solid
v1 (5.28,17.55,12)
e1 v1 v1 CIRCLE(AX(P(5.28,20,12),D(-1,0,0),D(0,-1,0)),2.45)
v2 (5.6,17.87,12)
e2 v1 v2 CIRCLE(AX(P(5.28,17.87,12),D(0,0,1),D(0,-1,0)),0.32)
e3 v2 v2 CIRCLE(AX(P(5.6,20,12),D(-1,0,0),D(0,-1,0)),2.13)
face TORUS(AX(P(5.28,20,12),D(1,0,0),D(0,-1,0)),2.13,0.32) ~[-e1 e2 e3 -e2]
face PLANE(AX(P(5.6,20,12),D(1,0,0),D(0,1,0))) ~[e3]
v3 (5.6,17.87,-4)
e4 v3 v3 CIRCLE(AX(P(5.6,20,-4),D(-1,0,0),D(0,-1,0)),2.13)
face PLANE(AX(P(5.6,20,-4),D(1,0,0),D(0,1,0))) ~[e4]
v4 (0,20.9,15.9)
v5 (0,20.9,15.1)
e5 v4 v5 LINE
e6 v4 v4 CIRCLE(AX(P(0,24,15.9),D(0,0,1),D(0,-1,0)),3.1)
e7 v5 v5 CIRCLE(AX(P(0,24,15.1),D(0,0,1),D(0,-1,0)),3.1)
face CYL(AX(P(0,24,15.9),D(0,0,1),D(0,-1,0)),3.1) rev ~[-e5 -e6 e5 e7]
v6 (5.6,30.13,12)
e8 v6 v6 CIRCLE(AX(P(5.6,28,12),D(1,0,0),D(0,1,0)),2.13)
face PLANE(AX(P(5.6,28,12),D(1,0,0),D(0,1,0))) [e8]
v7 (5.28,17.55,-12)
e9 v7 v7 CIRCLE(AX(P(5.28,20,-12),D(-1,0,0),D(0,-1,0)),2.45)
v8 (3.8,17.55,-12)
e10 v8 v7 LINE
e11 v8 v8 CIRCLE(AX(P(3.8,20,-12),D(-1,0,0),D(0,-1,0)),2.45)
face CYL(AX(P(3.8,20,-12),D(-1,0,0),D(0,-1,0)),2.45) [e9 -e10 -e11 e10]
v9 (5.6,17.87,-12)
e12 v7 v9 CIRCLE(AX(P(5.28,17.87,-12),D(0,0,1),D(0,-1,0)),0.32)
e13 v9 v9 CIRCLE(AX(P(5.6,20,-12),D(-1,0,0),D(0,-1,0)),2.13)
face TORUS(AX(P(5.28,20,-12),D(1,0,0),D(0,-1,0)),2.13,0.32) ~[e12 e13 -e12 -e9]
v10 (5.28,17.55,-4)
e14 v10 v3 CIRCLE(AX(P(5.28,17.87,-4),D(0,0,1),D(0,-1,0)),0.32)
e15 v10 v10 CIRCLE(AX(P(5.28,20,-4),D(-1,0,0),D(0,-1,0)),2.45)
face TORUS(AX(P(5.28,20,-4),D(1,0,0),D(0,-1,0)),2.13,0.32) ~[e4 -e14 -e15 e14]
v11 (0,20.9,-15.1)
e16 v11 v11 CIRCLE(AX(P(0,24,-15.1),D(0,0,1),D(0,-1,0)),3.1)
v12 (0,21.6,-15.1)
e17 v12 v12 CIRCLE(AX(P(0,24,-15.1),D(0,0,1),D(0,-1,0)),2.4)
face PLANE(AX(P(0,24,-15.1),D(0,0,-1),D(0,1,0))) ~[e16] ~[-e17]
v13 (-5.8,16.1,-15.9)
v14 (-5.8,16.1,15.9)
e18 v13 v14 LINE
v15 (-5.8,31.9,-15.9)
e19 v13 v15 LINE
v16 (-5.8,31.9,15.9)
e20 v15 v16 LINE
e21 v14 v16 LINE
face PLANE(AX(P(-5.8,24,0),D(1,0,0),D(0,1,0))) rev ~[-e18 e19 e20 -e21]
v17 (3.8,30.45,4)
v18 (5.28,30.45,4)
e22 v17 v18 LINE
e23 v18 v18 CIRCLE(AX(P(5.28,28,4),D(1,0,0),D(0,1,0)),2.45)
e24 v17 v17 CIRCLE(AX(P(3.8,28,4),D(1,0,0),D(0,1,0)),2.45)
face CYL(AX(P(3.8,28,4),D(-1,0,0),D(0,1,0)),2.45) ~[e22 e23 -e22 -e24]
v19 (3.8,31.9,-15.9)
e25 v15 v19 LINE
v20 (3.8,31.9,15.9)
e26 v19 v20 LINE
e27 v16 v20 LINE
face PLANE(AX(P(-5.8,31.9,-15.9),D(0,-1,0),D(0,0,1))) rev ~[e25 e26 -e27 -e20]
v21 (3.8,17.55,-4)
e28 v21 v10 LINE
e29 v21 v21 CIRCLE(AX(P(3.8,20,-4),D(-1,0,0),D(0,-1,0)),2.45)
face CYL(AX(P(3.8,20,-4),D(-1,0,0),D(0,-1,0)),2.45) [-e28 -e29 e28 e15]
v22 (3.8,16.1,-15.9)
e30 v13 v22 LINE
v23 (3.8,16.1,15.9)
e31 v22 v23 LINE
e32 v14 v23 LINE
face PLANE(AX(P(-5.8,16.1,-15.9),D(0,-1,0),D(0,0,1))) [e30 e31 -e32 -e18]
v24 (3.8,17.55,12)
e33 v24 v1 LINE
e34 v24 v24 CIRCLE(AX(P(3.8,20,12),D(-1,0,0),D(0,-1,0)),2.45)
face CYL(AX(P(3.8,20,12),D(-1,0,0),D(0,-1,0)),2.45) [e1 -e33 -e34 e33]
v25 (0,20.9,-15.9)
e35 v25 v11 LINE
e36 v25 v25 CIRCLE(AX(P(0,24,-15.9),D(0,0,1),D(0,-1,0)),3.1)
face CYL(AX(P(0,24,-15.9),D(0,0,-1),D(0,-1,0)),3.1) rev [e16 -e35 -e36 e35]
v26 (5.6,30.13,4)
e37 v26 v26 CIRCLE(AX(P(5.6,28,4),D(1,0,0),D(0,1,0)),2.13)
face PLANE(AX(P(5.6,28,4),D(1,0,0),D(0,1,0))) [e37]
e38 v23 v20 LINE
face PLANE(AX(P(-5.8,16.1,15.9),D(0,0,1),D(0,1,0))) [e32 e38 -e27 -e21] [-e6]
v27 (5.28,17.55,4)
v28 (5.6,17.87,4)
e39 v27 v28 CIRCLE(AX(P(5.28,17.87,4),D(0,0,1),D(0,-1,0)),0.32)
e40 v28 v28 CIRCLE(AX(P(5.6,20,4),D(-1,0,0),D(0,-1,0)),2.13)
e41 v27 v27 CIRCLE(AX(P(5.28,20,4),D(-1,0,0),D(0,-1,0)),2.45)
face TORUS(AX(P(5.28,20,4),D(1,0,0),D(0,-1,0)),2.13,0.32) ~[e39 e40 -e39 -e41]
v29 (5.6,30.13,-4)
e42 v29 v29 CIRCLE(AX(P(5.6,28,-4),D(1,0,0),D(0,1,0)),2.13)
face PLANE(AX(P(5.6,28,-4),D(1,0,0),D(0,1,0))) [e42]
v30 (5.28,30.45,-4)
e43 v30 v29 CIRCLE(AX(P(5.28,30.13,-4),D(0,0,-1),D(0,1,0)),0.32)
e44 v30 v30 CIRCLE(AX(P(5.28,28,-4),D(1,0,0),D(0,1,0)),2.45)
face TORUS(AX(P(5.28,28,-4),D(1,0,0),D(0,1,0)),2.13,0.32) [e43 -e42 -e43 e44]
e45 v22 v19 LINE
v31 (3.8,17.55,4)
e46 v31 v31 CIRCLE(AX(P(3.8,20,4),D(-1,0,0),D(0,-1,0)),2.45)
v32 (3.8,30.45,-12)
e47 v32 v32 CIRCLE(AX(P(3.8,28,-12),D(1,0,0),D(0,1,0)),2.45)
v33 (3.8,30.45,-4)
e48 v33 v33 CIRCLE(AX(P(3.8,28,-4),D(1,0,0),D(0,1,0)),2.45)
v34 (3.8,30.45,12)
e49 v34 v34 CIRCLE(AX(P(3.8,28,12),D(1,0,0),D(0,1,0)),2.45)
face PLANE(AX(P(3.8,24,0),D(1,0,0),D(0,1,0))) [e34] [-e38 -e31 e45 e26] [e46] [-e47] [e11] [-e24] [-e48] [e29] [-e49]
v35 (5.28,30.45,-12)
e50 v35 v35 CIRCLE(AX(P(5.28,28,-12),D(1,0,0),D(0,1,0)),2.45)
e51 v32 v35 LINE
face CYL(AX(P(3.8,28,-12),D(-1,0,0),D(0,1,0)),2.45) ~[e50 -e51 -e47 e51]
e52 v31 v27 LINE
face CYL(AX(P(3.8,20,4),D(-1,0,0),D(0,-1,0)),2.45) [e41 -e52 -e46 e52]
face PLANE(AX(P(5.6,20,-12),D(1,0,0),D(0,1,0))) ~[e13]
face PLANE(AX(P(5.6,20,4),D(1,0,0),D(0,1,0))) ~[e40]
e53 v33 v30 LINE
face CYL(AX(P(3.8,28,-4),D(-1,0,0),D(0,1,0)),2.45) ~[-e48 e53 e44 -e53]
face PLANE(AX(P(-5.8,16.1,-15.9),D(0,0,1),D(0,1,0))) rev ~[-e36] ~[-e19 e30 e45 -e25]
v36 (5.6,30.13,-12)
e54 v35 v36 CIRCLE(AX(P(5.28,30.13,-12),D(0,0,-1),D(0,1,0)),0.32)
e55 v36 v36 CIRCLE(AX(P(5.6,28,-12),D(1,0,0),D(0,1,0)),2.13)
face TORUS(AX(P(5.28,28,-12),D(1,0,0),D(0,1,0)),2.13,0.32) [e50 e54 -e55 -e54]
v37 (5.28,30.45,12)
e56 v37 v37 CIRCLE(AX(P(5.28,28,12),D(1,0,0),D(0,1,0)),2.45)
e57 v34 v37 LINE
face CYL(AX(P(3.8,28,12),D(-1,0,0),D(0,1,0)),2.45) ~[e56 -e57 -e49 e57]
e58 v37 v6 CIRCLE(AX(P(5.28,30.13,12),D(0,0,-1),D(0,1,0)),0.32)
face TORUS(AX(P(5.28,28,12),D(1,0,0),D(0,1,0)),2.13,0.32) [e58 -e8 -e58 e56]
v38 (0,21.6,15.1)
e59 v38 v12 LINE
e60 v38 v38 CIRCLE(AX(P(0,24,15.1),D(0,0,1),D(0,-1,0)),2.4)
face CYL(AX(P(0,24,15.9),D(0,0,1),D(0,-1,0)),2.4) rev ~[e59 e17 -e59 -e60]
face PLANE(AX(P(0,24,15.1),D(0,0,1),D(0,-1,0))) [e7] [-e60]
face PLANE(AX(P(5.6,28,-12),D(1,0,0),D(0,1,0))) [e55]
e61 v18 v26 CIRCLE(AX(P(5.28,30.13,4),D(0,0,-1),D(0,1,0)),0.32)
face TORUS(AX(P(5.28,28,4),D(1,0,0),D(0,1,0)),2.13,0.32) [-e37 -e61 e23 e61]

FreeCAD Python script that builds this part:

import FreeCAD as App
import Part
import Sketcher
from FreeCAD import Vector


def edges_at(feature, points):
    """Names of the edges that pass closest to the given points."""
    edges = feature.Shape.Edges
    near = lambda p: min(range(len(edges)), key=lambda i: edges[i].distToShape(Part.Vertex(*p))[0])
    return sorted({f"Edge{near(p) + 1}" for p in points})

doc = App.newDocument("Part")
body = doc.addObject("PartDesign::Body", "Body")

# Sketch on YZ plane
sketch1 = body.newObject("Sketcher::SketchObject", "Sketch")
sketch1.AttachmentSupport = (doc.getObject("YZ_Plane"), [""])
sketch1.MapMode = "FlatFace"
sketch1.addGeometry([
    Part.LineSegment(Vector(-8, 16, 0), Vector(-8, -16, 0)),
    Part.LineSegment(Vector(-8, -16, 0), Vector(8, -16, 0)),
    Part.LineSegment(Vector(8, -16, 0), Vector(8, 16, 0)),
    Part.LineSegment(Vector(8, 16, 0), Vector(-8, 16, 0)),
], False)
sketch1.addConstraint([
    Sketcher.Constraint("Coincident", 0, 2, 1, 1),
    Sketcher.Constraint("Coincident", 1, 2, 2, 1),
    Sketcher.Constraint("Coincident", 2, 2, 3, 1),
    Sketcher.Constraint("Coincident", 3, 2, 0, 1),
    Sketcher.Constraint("Vertical", 0),
    Sketcher.Constraint("Horizontal", 1),
    Sketcher.Constraint("Vertical", 2),
    Sketcher.Constraint("Horizontal", 3),
    Sketcher.Constraint("Symmetric", 0, 2, 2, 2, -1, 1),
    Sketcher.Constraint("DistanceX", 1, 1, 1, 2, 15.8),
    Sketcher.Constraint("DistanceY", 0, 2, 0, 1, 31.8),
])
pad1 = body.newObject("PartDesign::Pad", "Pad")
pad1.Profile = sketch1
pad1.Length = 9.6

# Sketch on XY plane
sketch2 = body.newObject("Sketcher::SketchObject", "Sketch001")
sketch2.AttachmentSupport = (doc.getObject("XY_Plane"), [""])
sketch2.MapMode = "FlatFace"
sketch2.AttachmentOffset = App.Placement(Vector(0, 0, 15.9), App.Rotation())
sketch2.addGeometry(Part.Circle(Vector(5.8, 0, 0), Vector(0, 0, 1), 2.4), False)
sketch2.addConstraint([
    Sketcher.Constraint("PointOnObject", 0, 3, -1),
    Sketcher.Constraint("Diameter", 0, 4.8),
    Sketcher.Constraint("DistanceX", -1, 1, 0, 3, 5.8),
])
pocket1 = body.newObject("PartDesign::Pocket", "Pocket")
pocket1.Profile = sketch2
pocket1.Length = 31.8

# Sketch on XY plane
sketch3 = body.newObject("Sketcher::SketchObject", "Sketch002")
sketch3.AttachmentSupport = (doc.getObject("XY_Plane"), [""])
sketch3.MapMode = "FlatFace"
sketch3.AttachmentOffset = App.Placement(Vector(0, 0, 15.9), App.Rotation())
sketch3.addGeometry(Part.Circle(Vector(5.8, 0, 0), Vector(0, 0, 1), 3.1), False)
sketch3.addConstraint([
    Sketcher.Constraint("PointOnObject", 0, 3, -1),
    Sketcher.Constraint("Diameter", 0, 6.2),
    Sketcher.Constraint("DistanceX", -1, 1, 0, 3, 5.8),
])
pocket2 = body.newObject("PartDesign::Pocket", "Pocket001")
pocket2.Profile = sketch3
pocket2.Length = 0.8
doc.recompute()

mirrored = body.newObject("PartDesign::Mirrored", "Mirrored")
mirrored.Originals = [pocket2]
mirrored.MirrorPlane = (doc.getObject("XY_Plane"), [""])
body.Tip = mirrored

# Sketch on YZ plane
sketch4 = body.newObject("Sketcher::SketchObject", "Sketch003")
sketch4.AttachmentSupport = (doc.getObject("YZ_Plane"), [""])
sketch4.MapMode = "FlatFace"
sketch4.AttachmentOffset = App.Placement(Vector(0, 0, 9.6), App.Rotation())
sketch4.addGeometry(Part.Circle(Vector(4, 12, 0), Vector(0, 0, 1), 2.5), False)
sketch4.addConstraint([
    Sketcher.Constraint("Diameter", 0, 4.9),
    Sketcher.Constraint("DistanceX", -1, 1, 0, 3, 4.0),
    Sketcher.Constraint("DistanceY", -1, 1, 0, 3, 12.0),
])
pad2 = body.newObject("PartDesign::Pad", "Pad001")
pad2.Profile = sketch4
pad2.Length = 1.8

# Sketch on YZ plane
sketch5 = body.newObject("Sketcher::SketchObject", "Sketch004")
sketch5.AttachmentSupport = (doc.getObject("YZ_Plane"), [""])
sketch5.MapMode = "FlatFace"
sketch5.AttachmentOffset = App.Placement(Vector(0, 0, 9.6), App.Rotation())
sketch5.addGeometry(Part.Circle(Vector(4, 4, 0), Vector(0, 0, 1), 2.5), False)
sketch5.addConstraint([
    Sketcher.Constraint("Diameter", 0, 4.9),
    Sketcher.Constraint("DistanceX", -1, 1, 0, 3, 4.0),
    Sketcher.Constraint("DistanceY", -1, 1, 0, 3, 4.0),
])
pad3 = body.newObject("PartDesign::Pad", "Pad002")
pad3.Profile = sketch5
pad3.Length = 1.8

# Sketch on YZ plane
sketch6 = body.newObject("Sketcher::SketchObject", "Sketch005")
sketch6.AttachmentSupport = (doc.getObject("YZ_Plane"), [""])
sketch6.MapMode = "FlatFace"
sketch6.AttachmentOffset = App.Placement(Vector(0, 0, 9.6), App.Rotation())
sketch6.addGeometry(Part.Circle(Vector(4, -4, 0), Vector(0, 0, 1), 2.5), False)
sketch6.addConstraint([
    Sketcher.Constraint("Diameter", 0, 4.9),
    Sketcher.Constraint("DistanceX", -1, 1, 0, 3, 4.0),
    Sketcher.Constraint("DistanceY", 0, 3, -1, 1, 4.0),
])
pad4 = body.newObject("PartDesign::Pad", "Pad003")
pad4.Profile = sketch6
pad4.Length = 1.8

# Sketch on YZ plane
sketch7 = body.newObject("Sketcher::SketchObject", "Sketch006")
sketch7.AttachmentSupport = (doc.getObject("YZ_Plane"), [""])
sketch7.MapMode = "FlatFace"
sketch7.AttachmentOffset = App.Placement(Vector(0, 0, 9.6), App.Rotation())
sketch7.addGeometry(Part.Circle(Vector(4, -12, 0), Vector(0, 0, 1), 2.5), False)
sketch7.addConstraint([
    Sketcher.Constraint("Diameter", 0, 4.9),
    Sketcher.Constraint("DistanceX", -1, 1, 0, 3, 4.0),
    Sketcher.Constraint("DistanceY", 0, 3, -1, 1, 12.0),
])
pad5 = body.newObject("PartDesign::Pad", "Pad004")
pad5.Profile = sketch7
pad5.Length = 1.8
doc.recompute()

mirrored2 = body.newObject("PartDesign::Mirrored", "Mirrored001")
mirrored2.Originals = [pad2, pad3, pad4, pad5]
mirrored2.MirrorPlane = (doc.getObject("XZ_Plane"), [""])
body.Tip = mirrored2
doc.recompute()

fillet = body.newObject("PartDesign::Fillet", "Fillet")
fillet.Base = (mirrored2, edges_at(mirrored2, [
    (11.4, -1.55, -12),
    (11.4, 1.55, -12),
    (11.4, 1.55, -4),
    (11.4, -1.55, -4),
    (11.4, -1.55, 4),
    (11.4, 1.55, 4),
    (11.4, 1.55, 12),
    (11.4, -1.55, 12),
]))
fillet.Radius = 0.32
body2 = doc.addObject("PartDesign::Body", "Body001")
doc.recompute()

body.Placement = App.Placement(Vector(-5.8, 24, 0), App.Rotation(Vector(0, 0, 1), 0))
boolean = body2.newObject("PartDesign::Boolean", "Boolean")
boolean.Type = "Fuse"
boolean.addObjects([body])

doc.recompute()
